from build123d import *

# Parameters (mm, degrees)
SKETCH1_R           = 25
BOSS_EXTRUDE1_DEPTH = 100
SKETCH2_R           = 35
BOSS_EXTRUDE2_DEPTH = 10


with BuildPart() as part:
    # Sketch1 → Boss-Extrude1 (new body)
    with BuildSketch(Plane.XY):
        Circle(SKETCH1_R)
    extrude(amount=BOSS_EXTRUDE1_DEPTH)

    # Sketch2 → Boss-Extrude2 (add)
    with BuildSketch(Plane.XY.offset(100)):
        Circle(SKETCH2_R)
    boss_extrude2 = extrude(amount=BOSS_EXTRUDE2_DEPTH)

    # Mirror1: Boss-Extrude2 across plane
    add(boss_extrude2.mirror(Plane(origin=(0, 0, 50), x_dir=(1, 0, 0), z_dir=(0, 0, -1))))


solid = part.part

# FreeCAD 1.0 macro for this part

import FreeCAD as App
import Part
import Sketcher
from FreeCAD import Vector
Q = App.Units.Quantity

doc = App.newDocument("Part")
params = doc.addObject("Spreadsheet::Sheet", "Params")
for row, (alias, value) in enumerate([
    ("sketch1_diameter", "50 mm"),
    ("pad1_length", "100 mm"),
    ("sketch2_diameter", "70 mm"),
    ("pad2_length", "10 mm"),
], start=1):
    params.set(f"A{row}", alias)
    params.set(f"B{row}", "=" + value)
    params.setAlias(f"B{row}", alias)

body = doc.addObject("PartDesign::Body", "Body")

sketch1 = doc.addObject("Sketcher::SketchObject", "Sketch")
body.addObject(sketch1)
sketch1.AttachmentSupport = (doc.XY_Plane, [""])
sketch1.MapMode = "FlatFace"
sketch1.addGeometry(Part.Circle(Vector(0, 0, 0), Vector(0, 0, 1), 25), False)
sketch1.addConstraint(Sketcher.Constraint("Coincident", 0, 3, -1, 1))
sketch1.addConstraint(Sketcher.Constraint("Diameter", 0, Q("50 mm")))
sketch1.setExpression("Constraints[1]", "Params.sketch1_diameter")
pad1 = doc.addObject("PartDesign::Pad", "Pad")
body.addObject(pad1)
pad1.Profile = sketch1
pad1.setExpression("Length", "Params.pad1_length")

sketch2 = doc.addObject("Sketcher::SketchObject", "Sketch001")
body.addObject(sketch2)
sketch2.AttachmentSupport = (doc.XY_Plane, [""])
sketch2.MapMode = "FlatFace"
sketch2.AttachmentOffset = App.Placement(Vector(0, 0, 100), App.Rotation())
sketch2.addGeometry(Part.Circle(Vector(0, 0, 0), Vector(0, 0, 1), 35), False)
sketch2.addConstraint(Sketcher.Constraint("Coincident", 0, 3, -1, 1))
sketch2.addConstraint(Sketcher.Constraint("Diameter", 0, Q("70 mm")))
sketch2.setExpression("Constraints[1]", "Params.sketch2_diameter")
pad2 = doc.addObject("PartDesign::Pad", "Pad001")
body.addObject(pad2)
pad2.Profile = sketch2
pad2.setExpression("Length", "Params.pad2_length")
doc.recompute()

datumplane = doc.addObject("PartDesign::Plane", "DatumPlane")
body.addObject(datumplane)
datumplane.AttachmentSupport = (doc.XY_Plane, [""])
datumplane.MapMode = "FlatFace"
datumplane.AttachmentOffset = App.Placement(Vector(0, 0, 50), App.Rotation())
mirrored = doc.addObject("PartDesign::Mirrored", "Mirrored")
body.addObject(mirrored)
mirrored.Originals = [pad2]
mirrored.MirrorPlane = (datumplane, [""])
body.Tip = mirrored

doc.recompute()
